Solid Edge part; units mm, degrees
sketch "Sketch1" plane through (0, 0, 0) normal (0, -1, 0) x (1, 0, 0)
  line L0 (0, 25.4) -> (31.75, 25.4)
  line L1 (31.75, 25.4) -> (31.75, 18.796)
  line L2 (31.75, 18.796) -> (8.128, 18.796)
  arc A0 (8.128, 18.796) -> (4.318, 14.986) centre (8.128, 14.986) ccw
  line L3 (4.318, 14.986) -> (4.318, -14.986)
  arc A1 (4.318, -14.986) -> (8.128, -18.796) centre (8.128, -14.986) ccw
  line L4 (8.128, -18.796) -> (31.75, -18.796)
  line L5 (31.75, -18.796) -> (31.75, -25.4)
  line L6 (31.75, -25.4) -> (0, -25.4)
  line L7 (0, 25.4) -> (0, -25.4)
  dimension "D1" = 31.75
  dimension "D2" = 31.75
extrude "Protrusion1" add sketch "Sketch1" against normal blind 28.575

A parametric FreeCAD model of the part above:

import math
import FreeCAD as App
import Part
import Sketcher

V = App.Vector
Q = App.Units.Quantity

doc = App.newDocument("Part")
body = doc.addObject("PartDesign::Body", "Body")

# Sketch on XZ plane
sketch1 = body.newObject("Sketcher::SketchObject", "Sketch")
sketch1.AttachmentSupport = (doc.getObject("XZ_Plane"), [""])
sketch1.MapMode = "FlatFace"
sketch1.addGeometry([
    Part.LineSegment(V(31.75, 25.4, 0), V(0, 25.4, 0)),  # 0
    Part.LineSegment(V(0, 25.4, 0), V(0, -25.4, 0)),  # 1
    Part.LineSegment(V(0, -25.4, 0), V(31.75, -25.4, 0)),  # 2
    Part.LineSegment(V(31.75, -25.4, 0), V(31.75, -18.796, 0)),  # 3
    Part.LineSegment(V(31.75, -18.796, 0), V(8.128, -18.796, 0)),  # 4
    Part.ArcOfCircle(Part.Circle(V(8.128, -14.986, 0), V(0, 0, 1), 3.81), math.radians(180), math.radians(270)),  # 5
    Part.LineSegment(V(4.318, -14.986, 0), V(4.318, 14.986, 0)),  # 6
    Part.ArcOfCircle(Part.Circle(V(8.128, 14.986, 0), V(0, 0, 1), 3.81), math.radians(90), math.radians(180)),  # 7
    Part.LineSegment(V(8.128, 18.796, 0), V(31.75, 18.796, 0)),  # 8
    Part.LineSegment(V(31.75, 18.796, 0), V(31.75, 25.4, 0)),  # 9
], False)
sketch1.addConstraint([
    Sketcher.Constraint("Coincident", 0, 2, 1, 1),
    Sketcher.Constraint("Coincident", 1, 2, 2, 1),
    Sketcher.Constraint("Coincident", 2, 2, 3, 1),
    Sketcher.Constraint("Coincident", 3, 2, 4, 1),
    Sketcher.Constraint("Tangent", 4, 2, 5, 2),
    Sketcher.Constraint("Tangent", 5, 1, 6, 1),
    Sketcher.Constraint("Tangent", 6, 2, 7, 2),
    Sketcher.Constraint("Tangent", 7, 1, 8, 1),
    Sketcher.Constraint("Coincident", 8, 2, 9, 1),
    Sketcher.Constraint("Coincident", 9, 2, 0, 1),
    Sketcher.Constraint("Horizontal", 0),
    Sketcher.Constraint("Vertical", 1),
    Sketcher.Constraint("Horizontal", 2),
    Sketcher.Constraint("Vertical", 3),
    Sketcher.Constraint("Horizontal", 4),
    Sketcher.Constraint("Vertical", 6),
    Sketcher.Constraint("Horizontal", 8),
    Sketcher.Constraint("Vertical", 9),
    Sketcher.Constraint("Equal", 5, 7),
    Sketcher.Constraint("Symmetric", 0, 2, 1, 2, -1, 1),
    Sketcher.Constraint("Symmetric", 3, 2, 8, 2, -1),
    Sketcher.Constraint("DistanceX", 0, 2, 0, 1, Q("1.25 in")),
    Sketcher.Constraint("DistanceY", 1, 2, 1, 1, Q("2 in")),
    Sketcher.Constraint("Radius", 5, Q("0.15 in")),
    Sketcher.Constraint("DistanceX", 4, 2, 4, 1, Q("0.93 in")),
    Sketcher.Constraint("DistanceY", 3, 1, 3, 2, Q("0.26 in")),
])
pad1 = body.newObject("PartDesign::Pad", "Pad")
pad1.Profile = sketch1
pad1.Length = Q("1.125 in")
pad1.Reversed = True

doc.recompute()
